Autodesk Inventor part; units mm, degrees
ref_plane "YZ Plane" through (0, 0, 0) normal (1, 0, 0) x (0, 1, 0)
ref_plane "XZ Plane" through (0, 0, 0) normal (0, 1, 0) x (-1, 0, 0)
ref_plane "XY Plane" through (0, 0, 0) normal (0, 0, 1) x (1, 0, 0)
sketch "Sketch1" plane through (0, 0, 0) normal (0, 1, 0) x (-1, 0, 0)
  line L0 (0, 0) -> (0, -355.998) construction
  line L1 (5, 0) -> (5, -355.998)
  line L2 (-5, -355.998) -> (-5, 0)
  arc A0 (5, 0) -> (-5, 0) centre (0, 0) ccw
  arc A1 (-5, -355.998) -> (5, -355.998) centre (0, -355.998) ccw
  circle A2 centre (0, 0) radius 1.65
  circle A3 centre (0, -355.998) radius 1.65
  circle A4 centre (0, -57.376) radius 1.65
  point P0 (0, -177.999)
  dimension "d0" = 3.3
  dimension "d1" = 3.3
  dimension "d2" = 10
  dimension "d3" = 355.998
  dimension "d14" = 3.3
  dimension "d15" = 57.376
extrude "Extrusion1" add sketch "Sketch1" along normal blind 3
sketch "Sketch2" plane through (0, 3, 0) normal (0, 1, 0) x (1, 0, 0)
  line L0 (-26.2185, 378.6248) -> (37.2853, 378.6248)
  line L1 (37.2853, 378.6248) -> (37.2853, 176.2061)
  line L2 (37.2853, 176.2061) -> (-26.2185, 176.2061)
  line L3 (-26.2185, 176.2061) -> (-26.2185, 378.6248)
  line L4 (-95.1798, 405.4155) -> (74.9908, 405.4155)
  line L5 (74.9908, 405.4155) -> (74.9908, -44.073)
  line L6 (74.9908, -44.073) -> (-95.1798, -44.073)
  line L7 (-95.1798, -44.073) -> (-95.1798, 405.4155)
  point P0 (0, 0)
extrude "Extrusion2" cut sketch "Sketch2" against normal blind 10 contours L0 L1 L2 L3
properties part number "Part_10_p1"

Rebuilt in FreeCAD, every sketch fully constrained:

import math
import FreeCAD as App
import Part
import Sketcher
from FreeCAD import Vector


def add_polygon(sketch, points):
    """Adds a closed chain of lines whose ends are joined by coincident constraints."""
    first, n = sketch.GeometryCount, len(points)
    for a, b in zip(points, points[1:] + points[:1]):
        sketch.addGeometry(Part.LineSegment(App.Vector(*a, 0), App.Vector(*b, 0)), False)
    for i in range(n):
        sketch.addConstraint(Sketcher.Constraint("Coincident", first + i, 2, first + (i + 1) % n, 1))

doc = App.newDocument("Part")
body = doc.addObject("PartDesign::Body", "Body")

# Sketch on XZ plane
sketch1 = body.newObject("Sketcher::SketchObject", "Sketch")
sketch1.AttachmentSupport = (doc.getObject("XZ_Plane"), [""])
sketch1.MapMode = "FlatFace"
sketch1.addGeometry([
    Part.LineSegment(Vector(-5, -355.998, 0), Vector(-5, 0, 0)),  # 0
    Part.ArcOfCircle(Part.Circle(Vector(0, 0, 0), Vector(0, 0, 1), 5), math.radians(0), math.radians(180)),  # 1
    Part.LineSegment(Vector(5, 0, 0), Vector(5, -355.998, 0)),  # 2
    Part.ArcOfCircle(Part.Circle(Vector(0, -355.998, 0), Vector(0, 0, 1), 5), math.radians(180), math.radians(360)),  # 3
    Part.Circle(Vector(0, -355.998, 0), Vector(0, 0, 1), 1.65),  # 4
    Part.Circle(Vector(0, -57.376, 0), Vector(0, 0, 1), 1.65),  # 5
    Part.Circle(Vector(0, 0, 0), Vector(0, 0, 1), 1.65),  # 6
], False)
sketch1.addConstraint([
    Sketcher.Constraint("Tangent", 0, 2, 1, 2),
    Sketcher.Constraint("Tangent", 1, 1, 2, 1),
    Sketcher.Constraint("Tangent", 2, 2, 3, 2),
    Sketcher.Constraint("Tangent", 3, 1, 0, 1),
    Sketcher.Constraint("Vertical", 0),
    Sketcher.Constraint("Vertical", 2),
    Sketcher.Constraint("Coincident", 1, 3, -1, 1),
    Sketcher.Constraint("Coincident", 6, 3, -1, 1),
    Sketcher.Constraint("Coincident", 4, 3, 3, 3),
    Sketcher.Constraint("Equal", 4, 5),
    Sketcher.Constraint("Equal", 5, 6),
    Sketcher.Constraint("PointOnObject", 5, 3, -2),
    Sketcher.Constraint("Radius", 1, 5.0),
    Sketcher.Constraint("Diameter", 4, 3.3),
    Sketcher.Constraint("DistanceY", 0, 1, 0, 2, 355.998),
    Sketcher.Constraint("DistanceY", 5, 3, -1, 1, 57.376),
])
pad1 = body.newObject("PartDesign::Pad", "Pad")
pad1.Profile = sketch1
pad1.Length = 3
pad1.Reversed = True

# Sketch on XZ plane
sketch2 = body.newObject("Sketcher::SketchObject", "Sketch001")
sketch2.AttachmentSupport = (doc.getObject("XZ_Plane"), [""])
sketch2.MapMode = "FlatFace"
sketch2.AttachmentOffset = App.Placement(Vector(0, 0, -3), App.Rotation())
add_polygon(sketch2, [(37.2853, -378.6248), (-26.2185, -378.6248), (-26.2185, -176.2061), (37.2853, -176.2061)])  # lines 0-3
sketch2.addConstraint([
    Sketcher.Constraint("Horizontal", 0),
    Sketcher.Constraint("Vertical", 1),
    Sketcher.Constraint("Horizontal", 2),
    Sketcher.Constraint("Vertical", 3),
    Sketcher.Constraint("DistanceX", 0, 2, 0, 1, 63.5038),
    Sketcher.Constraint("DistanceY", 1, 1, 1, 2, 202.4187),
    Sketcher.Constraint("DistanceY", 1, 2, -1, 1, 176.206),
    Sketcher.Constraint("DistanceX", 0, 2, -1, 1, 26.2185),
])
pocket1 = body.newObject("PartDesign::Pocket", "Pocket")
pocket1.Profile = sketch2
pocket1.Length = 10
pocket1.Reversed = True

doc.recompute()
